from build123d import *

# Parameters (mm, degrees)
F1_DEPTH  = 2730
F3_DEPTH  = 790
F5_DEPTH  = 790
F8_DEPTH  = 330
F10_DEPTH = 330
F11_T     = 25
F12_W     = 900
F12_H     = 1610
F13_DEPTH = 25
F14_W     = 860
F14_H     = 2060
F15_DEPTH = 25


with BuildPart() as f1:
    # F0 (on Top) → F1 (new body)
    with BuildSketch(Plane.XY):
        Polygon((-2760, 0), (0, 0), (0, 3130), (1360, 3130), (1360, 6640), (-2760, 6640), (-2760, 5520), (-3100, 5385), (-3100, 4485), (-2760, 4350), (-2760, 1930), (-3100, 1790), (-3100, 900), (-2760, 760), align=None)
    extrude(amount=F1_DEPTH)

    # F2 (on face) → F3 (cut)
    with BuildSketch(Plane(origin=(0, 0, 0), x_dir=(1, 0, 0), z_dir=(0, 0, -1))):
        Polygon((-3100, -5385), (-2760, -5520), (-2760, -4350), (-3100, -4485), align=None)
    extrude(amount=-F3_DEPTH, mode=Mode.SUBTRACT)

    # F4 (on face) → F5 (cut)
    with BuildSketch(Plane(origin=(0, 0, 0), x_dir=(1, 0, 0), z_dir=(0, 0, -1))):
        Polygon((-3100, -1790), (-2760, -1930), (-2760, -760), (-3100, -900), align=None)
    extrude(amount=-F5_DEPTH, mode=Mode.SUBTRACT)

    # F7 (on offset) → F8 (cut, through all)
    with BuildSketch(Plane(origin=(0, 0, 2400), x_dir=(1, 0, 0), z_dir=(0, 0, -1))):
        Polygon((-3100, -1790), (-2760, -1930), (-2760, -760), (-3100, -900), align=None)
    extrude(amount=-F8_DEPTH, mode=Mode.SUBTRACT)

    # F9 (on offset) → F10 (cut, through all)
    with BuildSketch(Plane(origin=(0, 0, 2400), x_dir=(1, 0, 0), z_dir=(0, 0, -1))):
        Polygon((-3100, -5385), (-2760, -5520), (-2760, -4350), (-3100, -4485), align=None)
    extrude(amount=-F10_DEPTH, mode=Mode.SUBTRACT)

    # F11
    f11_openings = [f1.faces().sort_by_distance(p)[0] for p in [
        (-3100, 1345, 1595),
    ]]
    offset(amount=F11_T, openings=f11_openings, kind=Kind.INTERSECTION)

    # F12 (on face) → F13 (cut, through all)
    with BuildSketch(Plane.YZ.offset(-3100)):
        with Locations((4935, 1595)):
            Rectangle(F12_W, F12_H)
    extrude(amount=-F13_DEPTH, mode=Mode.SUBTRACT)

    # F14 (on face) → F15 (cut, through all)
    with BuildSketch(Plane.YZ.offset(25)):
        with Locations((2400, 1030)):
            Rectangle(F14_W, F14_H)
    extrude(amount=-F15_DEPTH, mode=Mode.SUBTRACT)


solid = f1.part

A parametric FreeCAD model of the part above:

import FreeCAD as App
import Part
import Sketcher
Q = App.Units.Quantity


def faces_at(feature, points):
    """Names of the faces that lie closest to the given points."""
    faces = feature.Shape.Faces
    near = lambda p: min(range(len(faces)), key=lambda i: faces[i].distToShape(Part.Vertex(*p))[0])
    return sorted({f"Face{near(p) + 1}" for p in points})

doc = App.newDocument("Part")
body = doc.addObject("PartDesign::Body", "Body")

# Sketch on XY plane
sketch1 = body.newObject("Sketcher::SketchObject", "Sketch")
sketch1.AttachmentSupport = (doc.getObject("XY_Plane"), [""])
sketch1.MapMode = "FlatFace"
sketch1.addGeometry(Part.LineSegment(App.Vector(-2760, 0, 0), App.Vector(0, 0, 0)), False)
sketch1.addGeometry(Part.LineSegment(App.Vector(0, 0, 0), App.Vector(0, 3130, 0)), False)
sketch1.addGeometry(Part.LineSegment(App.Vector(0, 3130, 0), App.Vector(1360, 3130, 0)), False)
sketch1.addGeometry(Part.LineSegment(App.Vector(1360, 3130, 0), App.Vector(1360, 6640, 0)), False)
sketch1.addGeometry(Part.LineSegment(App.Vector(1360, 6640, 0), App.Vector(-2760, 6640, 0)), False)
sketch1.addGeometry(Part.LineSegment(App.Vector(-2760, 6640, 0), App.Vector(-2760, 5520, 0)), False)
sketch1.addGeometry(Part.LineSegment(App.Vector(-2760, 5520, 0), App.Vector(-3100, 5385, 0)), False)
sketch1.addGeometry(Part.LineSegment(App.Vector(-3100, 5385, 0), App.Vector(-3100, 4485, 0)), False)
sketch1.addGeometry(Part.LineSegment(App.Vector(-3100, 4485, 0), App.Vector(-2760, 4350, 0)), False)
sketch1.addGeometry(Part.LineSegment(App.Vector(-2760, 4350, 0), App.Vector(-2760, 1930, 0)), False)
sketch1.addGeometry(Part.LineSegment(App.Vector(-2760, 1930, 0), App.Vector(-3100, 1790, 0)), False)
sketch1.addGeometry(Part.LineSegment(App.Vector(-3100, 1790, 0), App.Vector(-3100, 900, 0)), False)
sketch1.addGeometry(Part.LineSegment(App.Vector(-3100, 900, 0), App.Vector(-2760, 760, 0)), False)
sketch1.addGeometry(Part.LineSegment(App.Vector(-2760, 760, 0), App.Vector(-2760, 0, 0)), False)
sketch1.addConstraint(Sketcher.Constraint("Coincident", 0, 2, 1, 1))
sketch1.addConstraint(Sketcher.Constraint("Coincident", 1, 2, 2, 1))
sketch1.addConstraint(Sketcher.Constraint("Coincident", 2, 2, 3, 1))
sketch1.addConstraint(Sketcher.Constraint("Coincident", 3, 2, 4, 1))
sketch1.addConstraint(Sketcher.Constraint("Coincident", 4, 2, 5, 1))
sketch1.addConstraint(Sketcher.Constraint("Coincident", 5, 2, 6, 1))
sketch1.addConstraint(Sketcher.Constraint("Coincident", 6, 2, 7, 1))
sketch1.addConstraint(Sketcher.Constraint("Coincident", 7, 2, 8, 1))
sketch1.addConstraint(Sketcher.Constraint("Coincident", 8, 2, 9, 1))
sketch1.addConstraint(Sketcher.Constraint("Coincident", 9, 2, 10, 1))
sketch1.addConstraint(Sketcher.Constraint("Coincident", 10, 2, 11, 1))
sketch1.addConstraint(Sketcher.Constraint("Coincident", 11, 2, 12, 1))
sketch1.addConstraint(Sketcher.Constraint("Coincident", 12, 2, 13, 1))
sketch1.addConstraint(Sketcher.Constraint("Coincident", 13, 2, 0, 1))
sketch1.addConstraint(Sketcher.Constraint("Horizontal", 0))
sketch1.addConstraint(Sketcher.Constraint("Vertical", 1))
sketch1.addConstraint(Sketcher.Constraint("Horizontal", 2))
sketch1.addConstraint(Sketcher.Constraint("Vertical", 3))
sketch1.addConstraint(Sketcher.Constraint("Horizontal", 4))
sketch1.addConstraint(Sketcher.Constraint("Vertical", 5))
sketch1.addConstraint(Sketcher.Constraint("Vertical", 7))
sketch1.addConstraint(Sketcher.Constraint("Vertical", 9))
sketch1.addConstraint(Sketcher.Constraint("Vertical", 11))
sketch1.addConstraint(Sketcher.Constraint("Vertical", 13))
sketch1.addConstraint(Sketcher.Constraint("Coincident", 0, 2, -1, 1))
sketch1.addConstraint(Sketcher.Constraint("Vertical", 5, 2, 8, 2))
sketch1.addConstraint(Sketcher.Constraint("Vertical", 7, 2, 10, 2))
sketch1.addConstraint(Sketcher.Constraint("Vertical", 9, 2, 12, 2))
sketch1.addConstraint(Sketcher.Constraint("Equal", 6, 8))
sketch1.addConstraint(Sketcher.Constraint("Equal", 10, 12))
sketch1.addConstraint(Sketcher.Constraint("DistanceX", 0, 1, 0, 2, Q("2760 mm")))
sketch1.addConstraint(Sketcher.Constraint("DistanceX", 2, 1, 2, 2, Q("1360 mm")))
sketch1.addConstraint(Sketcher.Constraint("DistanceY", 1, 1, 1, 2, Q("3130 mm")))
sketch1.addConstraint(Sketcher.Constraint("DistanceY", 3, 1, 3, 2, Q("3510 mm")))
sketch1.addConstraint(Sketcher.Constraint("DistanceY", 5, 2, 5, 1, Q("1120 mm")))
sketch1.addConstraint(Sketcher.Constraint("DistanceY", 7, 2, 7, 1, Q("900 mm")))
sketch1.addConstraint(Sketcher.Constraint("DistanceY", 9, 2, 9, 1, Q("2420 mm")))
sketch1.addConstraint(Sketcher.Constraint("DistanceY", 11, 2, 11, 1, Q("890 mm")))
sketch1.addConstraint(Sketcher.Constraint("DistanceY", 13, 2, 13, 1, Q("760 mm")))
sketch1.addConstraint(Sketcher.Constraint("DistanceX", 6, 2, -1, 1, Q("3100 mm")))
sketch1.addConstraint(Sketcher.Constraint("DistanceY", -1, 1, 6, 2, Q("5385 mm")))
pad1 = body.newObject("PartDesign::Pad", "Pad")
pad1.Profile = sketch1
pad1.Length = 2730

# Sketch on XY plane
sketch2 = body.newObject("Sketcher::SketchObject", "Sketch001")
sketch2.AttachmentSupport = (doc.getObject("XY_Plane"), [""])
sketch2.MapMode = "FlatFace"
sketch2.addGeometry(Part.LineSegment(App.Vector(-3100, 5385, 0), App.Vector(-2760, 5520, 0)), False)
sketch2.addGeometry(Part.LineSegment(App.Vector(-2760, 5520, 0), App.Vector(-2760, 4350, 0)), False)
sketch2.addGeometry(Part.LineSegment(App.Vector(-2760, 4350, 0), App.Vector(-3100, 4485, 0)), False)
sketch2.addGeometry(Part.LineSegment(App.Vector(-3100, 4485, 0), App.Vector(-3100, 5385, 0)), False)
sketch2.addConstraint(Sketcher.Constraint("Coincident", 0, 2, 1, 1))
sketch2.addConstraint(Sketcher.Constraint("Coincident", 1, 2, 2, 1))
sketch2.addConstraint(Sketcher.Constraint("Coincident", 2, 2, 3, 1))
sketch2.addConstraint(Sketcher.Constraint("Coincident", 3, 2, 0, 1))
sketch2.addConstraint(Sketcher.Constraint("Vertical", 1))
sketch2.addConstraint(Sketcher.Constraint("Vertical", 3))
sketch2.addConstraint(Sketcher.Constraint("Equal", 0, 2))
sketch2.addConstraint(Sketcher.Constraint("DistanceY", 1, 2, 1, 1, Q("1170 mm")))
sketch2.addConstraint(Sketcher.Constraint("DistanceY", 3, 1, 3, 2, Q("900 mm")))
sketch2.addConstraint(Sketcher.Constraint("DistanceX", 0, 2, -1, 1, Q("2760 mm")))
sketch2.addConstraint(Sketcher.Constraint("DistanceY", -1, 1, 0, 2, Q("5520 mm")))
sketch2.addConstraint(Sketcher.Constraint("DistanceX", 2, 2, -1, 1, Q("3100 mm")))
pocket1 = body.newObject("PartDesign::Pocket", "Pocket")
pocket1.Profile = sketch2
pocket1.Length = 790
pocket1.Reversed = True

# Sketch on XY plane
sketch3 = body.newObject("Sketcher::SketchObject", "Sketch002")
sketch3.AttachmentSupport = (doc.getObject("XY_Plane"), [""])
sketch3.MapMode = "FlatFace"
sketch3.addGeometry(Part.LineSegment(App.Vector(-3100, 1790, 0), App.Vector(-2760, 1930, 0)), False)
sketch3.addGeometry(Part.LineSegment(App.Vector(-2760, 1930, 0), App.Vector(-2760, 760, 0)), False)
sketch3.addGeometry(Part.LineSegment(App.Vector(-2760, 760, 0), App.Vector(-3100, 900, 0)), False)
sketch3.addGeometry(Part.LineSegment(App.Vector(-3100, 900, 0), App.Vector(-3100, 1790, 0)), False)
sketch3.addConstraint(Sketcher.Constraint("Coincident", 0, 2, 1, 1))
sketch3.addConstraint(Sketcher.Constraint("Coincident", 1, 2, 2, 1))
sketch3.addConstraint(Sketcher.Constraint("Coincident", 2, 2, 3, 1))
sketch3.addConstraint(Sketcher.Constraint("Coincident", 3, 2, 0, 1))
sketch3.addConstraint(Sketcher.Constraint("Vertical", 1))
sketch3.addConstraint(Sketcher.Constraint("Vertical", 3))
sketch3.addConstraint(Sketcher.Constraint("Equal", 0, 2))
sketch3.addConstraint(Sketcher.Constraint("DistanceY", 1, 2, 1, 1, Q("1170 mm")))
sketch3.addConstraint(Sketcher.Constraint("DistanceY", 3, 1, 3, 2, Q("890 mm")))
sketch3.addConstraint(Sketcher.Constraint("DistanceX", 0, 2, -1, 1, Q("2760 mm")))
sketch3.addConstraint(Sketcher.Constraint("DistanceY", -1, 1, 0, 2, Q("1930 mm")))
sketch3.addConstraint(Sketcher.Constraint("DistanceX", 2, 2, -1, 1, Q("3100 mm")))
pocket2 = body.newObject("PartDesign::Pocket", "Pocket001")
pocket2.Profile = sketch3
pocket2.Length = 790
pocket2.Reversed = True

# Sketch on XY plane
sketch4 = body.newObject("Sketcher::SketchObject", "Sketch003")
sketch4.AttachmentSupport = (doc.getObject("XY_Plane"), [""])
sketch4.MapMode = "FlatFace"
sketch4.AttachmentOffset = App.Placement(App.Vector(0, 0, 2400), App.Rotation())
sketch4.addGeometry(Part.LineSegment(App.Vector(-3100, 1790, 0), App.Vector(-2760, 1930, 0)), False)
sketch4.addGeometry(Part.LineSegment(App.Vector(-2760, 1930, 0), App.Vector(-2760, 760, 0)), False)
sketch4.addGeometry(Part.LineSegment(App.Vector(-2760, 760, 0), App.Vector(-3100, 900, 0)), False)
sketch4.addGeometry(Part.LineSegment(App.Vector(-3100, 900, 0), App.Vector(-3100, 1790, 0)), False)
sketch4.addConstraint(Sketcher.Constraint("Coincident", 0, 2, 1, 1))
sketch4.addConstraint(Sketcher.Constraint("Coincident", 1, 2, 2, 1))
sketch4.addConstraint(Sketcher.Constraint("Coincident", 2, 2, 3, 1))
sketch4.addConstraint(Sketcher.Constraint("Coincident", 3, 2, 0, 1))
sketch4.addConstraint(Sketcher.Constraint("Vertical", 1))
sketch4.addConstraint(Sketcher.Constraint("Vertical", 3))
sketch4.addConstraint(Sketcher.Constraint("Equal", 0, 2))
sketch4.addConstraint(Sketcher.Constraint("DistanceY", 1, 2, 1, 1, Q("1170 mm")))
sketch4.addConstraint(Sketcher.Constraint("DistanceY", 3, 1, 3, 2, Q("890 mm")))
sketch4.addConstraint(Sketcher.Constraint("DistanceX", 0, 2, -1, 1, Q("2760 mm")))
sketch4.addConstraint(Sketcher.Constraint("DistanceY", -1, 1, 0, 2, Q("1930 mm")))
sketch4.addConstraint(Sketcher.Constraint("DistanceX", 2, 2, -1, 1, Q("3100 mm")))
pocket3 = body.newObject("PartDesign::Pocket", "Pocket002")
pocket3.Profile = sketch4
pocket3.Type = "ThroughAll"
pocket3.Reversed = True

# Sketch on XY plane
sketch5 = body.newObject("Sketcher::SketchObject", "Sketch004")
sketch5.AttachmentSupport = (doc.getObject("XY_Plane"), [""])
sketch5.MapMode = "FlatFace"
sketch5.AttachmentOffset = App.Placement(App.Vector(0, 0, 2400), App.Rotation())
sketch5.addGeometry(Part.LineSegment(App.Vector(-3100, 5385, 0), App.Vector(-2760, 5520, 0)), False)
sketch5.addGeometry(Part.LineSegment(App.Vector(-2760, 5520, 0), App.Vector(-2760, 4350, 0)), False)
sketch5.addGeometry(Part.LineSegment(App.Vector(-2760, 4350, 0), App.Vector(-3100, 4485, 0)), False)
sketch5.addGeometry(Part.LineSegment(App.Vector(-3100, 4485, 0), App.Vector(-3100, 5385, 0)), False)
sketch5.addConstraint(Sketcher.Constraint("Coincident", 0, 2, 1, 1))
sketch5.addConstraint(Sketcher.Constraint("Coincident", 1, 2, 2, 1))
sketch5.addConstraint(Sketcher.Constraint("Coincident", 2, 2, 3, 1))
sketch5.addConstraint(Sketcher.Constraint("Coincident", 3, 2, 0, 1))
sketch5.addConstraint(Sketcher.Constraint("Vertical", 1))
sketch5.addConstraint(Sketcher.Constraint("Vertical", 3))
sketch5.addConstraint(Sketcher.Constraint("Equal", 0, 2))
sketch5.addConstraint(Sketcher.Constraint("DistanceY", 1, 2, 1, 1, Q("1170 mm")))
sketch5.addConstraint(Sketcher.Constraint("DistanceY", 3, 1, 3, 2, Q("900 mm")))
sketch5.addConstraint(Sketcher.Constraint("DistanceX", 0, 2, -1, 1, Q("2760 mm")))
sketch5.addConstraint(Sketcher.Constraint("DistanceY", -1, 1, 0, 2, Q("5520 mm")))
sketch5.addConstraint(Sketcher.Constraint("DistanceX", 2, 2, -1, 1, Q("3100 mm")))
pocket4 = body.newObject("PartDesign::Pocket", "Pocket003")
pocket4.Profile = sketch5
pocket4.Type = "ThroughAll"
pocket4.Reversed = True
doc.recompute()

thickness = body.newObject("PartDesign::Thickness", "Thickness")
thickness.Base = (pocket4, faces_at(pocket4, [(-3100, 1345, 1595)]))
thickness.Value = 25
thickness.Reversed = False
thickness.Join = "Intersection"

# Sketch on YZ plane
sketch6 = body.newObject("Sketcher::SketchObject", "Sketch005")
sketch6.AttachmentSupport = (doc.getObject("YZ_Plane"), [""])
sketch6.MapMode = "FlatFace"
sketch6.AttachmentOffset = App.Placement(App.Vector(0, 0, -3100), App.Rotation())
sketch6.addGeometry(Part.LineSegment(App.Vector(4485, 2400, 0), App.Vector(4485, 790, 0)), False)
sketch6.addGeometry(Part.LineSegment(App.Vector(4485, 790, 0), App.Vector(5385, 790, 0)), False)
sketch6.addGeometry(Part.LineSegment(App.Vector(5385, 790, 0), App.Vector(5385, 2400, 0)), False)
sketch6.addGeometry(Part.LineSegment(App.Vector(5385, 2400, 0), App.Vector(4485, 2400, 0)), False)
sketch6.addConstraint(Sketcher.Constraint("Coincident", 0, 2, 1, 1))
sketch6.addConstraint(Sketcher.Constraint("Coincident", 1, 2, 2, 1))
sketch6.addConstraint(Sketcher.Constraint("Coincident", 2, 2, 3, 1))
sketch6.addConstraint(Sketcher.Constraint("Coincident", 3, 2, 0, 1))
sketch6.addConstraint(Sketcher.Constraint("Vertical", 0))
sketch6.addConstraint(Sketcher.Constraint("Horizontal", 1))
sketch6.addConstraint(Sketcher.Constraint("Vertical", 2))
sketch6.addConstraint(Sketcher.Constraint("Horizontal", 3))
sketch6.addConstraint(Sketcher.Constraint("DistanceX", 1, 1, 1, 2, Q("900 mm")))
sketch6.addConstraint(Sketcher.Constraint("DistanceY", 0, 2, 0, 1, Q("1610 mm")))
sketch6.addConstraint(Sketcher.Constraint("DistanceX", -1, 1, 0, 2, Q("4485 mm")))
sketch6.addConstraint(Sketcher.Constraint("DistanceY", -1, 1, 0, 2, Q("790 mm")))
pocket5 = body.newObject("PartDesign::Pocket", "Pocket004")
pocket5.Profile = sketch6
pocket5.Type = "ThroughAll"

# Sketch on YZ plane
sketch7 = body.newObject("Sketcher::SketchObject", "Sketch006")
sketch7.AttachmentSupport = (doc.getObject("YZ_Plane"), [""])
sketch7.MapMode = "FlatFace"
sketch7.AttachmentOffset = App.Placement(App.Vector(0, 0, 25), App.Rotation())
sketch7.addGeometry(Part.LineSegment(App.Vector(1970, 2060, 0), App.Vector(1970, 0, 0)), False)
sketch7.addGeometry(Part.LineSegment(App.Vector(1970, 0, 0), App.Vector(2830, 0, 0)), False)
sketch7.addGeometry(Part.LineSegment(App.Vector(2830, 0, 0), App.Vector(2830, 2060, 0)), False)
sketch7.addGeometry(Part.LineSegment(App.Vector(2830, 2060, 0), App.Vector(1970, 2060, 0)), False)
sketch7.addConstraint(Sketcher.Constraint("Coincident", 0, 2, 1, 1))
sketch7.addConstraint(Sketcher.Constraint("Coincident", 1, 2, 2, 1))
sketch7.addConstraint(Sketcher.Constraint("Coincident", 2, 2, 3, 1))
sketch7.addConstraint(Sketcher.Constraint("Coincident", 3, 2, 0, 1))
sketch7.addConstraint(Sketcher.Constraint("Vertical", 0))
sketch7.addConstraint(Sketcher.Constraint("Horizontal", 1))
sketch7.addConstraint(Sketcher.Constraint("Vertical", 2))
sketch7.addConstraint(Sketcher.Constraint("Horizontal", 3))
sketch7.addConstraint(Sketcher.Constraint("PointOnObject", 0, 2, -1))
sketch7.addConstraint(Sketcher.Constraint("DistanceX", 1, 1, 1, 2, Q("860 mm")))
sketch7.addConstraint(Sketcher.Constraint("DistanceY", 0, 2, 0, 1, Q("2060 mm")))
sketch7.addConstraint(Sketcher.Constraint("DistanceX", -1, 1, 0, 2, Q("1970 mm")))
pocket6 = body.newObject("PartDesign::Pocket", "Pocket005")
pocket6.Profile = sketch7
pocket6.Length = 25

doc.recompute()
